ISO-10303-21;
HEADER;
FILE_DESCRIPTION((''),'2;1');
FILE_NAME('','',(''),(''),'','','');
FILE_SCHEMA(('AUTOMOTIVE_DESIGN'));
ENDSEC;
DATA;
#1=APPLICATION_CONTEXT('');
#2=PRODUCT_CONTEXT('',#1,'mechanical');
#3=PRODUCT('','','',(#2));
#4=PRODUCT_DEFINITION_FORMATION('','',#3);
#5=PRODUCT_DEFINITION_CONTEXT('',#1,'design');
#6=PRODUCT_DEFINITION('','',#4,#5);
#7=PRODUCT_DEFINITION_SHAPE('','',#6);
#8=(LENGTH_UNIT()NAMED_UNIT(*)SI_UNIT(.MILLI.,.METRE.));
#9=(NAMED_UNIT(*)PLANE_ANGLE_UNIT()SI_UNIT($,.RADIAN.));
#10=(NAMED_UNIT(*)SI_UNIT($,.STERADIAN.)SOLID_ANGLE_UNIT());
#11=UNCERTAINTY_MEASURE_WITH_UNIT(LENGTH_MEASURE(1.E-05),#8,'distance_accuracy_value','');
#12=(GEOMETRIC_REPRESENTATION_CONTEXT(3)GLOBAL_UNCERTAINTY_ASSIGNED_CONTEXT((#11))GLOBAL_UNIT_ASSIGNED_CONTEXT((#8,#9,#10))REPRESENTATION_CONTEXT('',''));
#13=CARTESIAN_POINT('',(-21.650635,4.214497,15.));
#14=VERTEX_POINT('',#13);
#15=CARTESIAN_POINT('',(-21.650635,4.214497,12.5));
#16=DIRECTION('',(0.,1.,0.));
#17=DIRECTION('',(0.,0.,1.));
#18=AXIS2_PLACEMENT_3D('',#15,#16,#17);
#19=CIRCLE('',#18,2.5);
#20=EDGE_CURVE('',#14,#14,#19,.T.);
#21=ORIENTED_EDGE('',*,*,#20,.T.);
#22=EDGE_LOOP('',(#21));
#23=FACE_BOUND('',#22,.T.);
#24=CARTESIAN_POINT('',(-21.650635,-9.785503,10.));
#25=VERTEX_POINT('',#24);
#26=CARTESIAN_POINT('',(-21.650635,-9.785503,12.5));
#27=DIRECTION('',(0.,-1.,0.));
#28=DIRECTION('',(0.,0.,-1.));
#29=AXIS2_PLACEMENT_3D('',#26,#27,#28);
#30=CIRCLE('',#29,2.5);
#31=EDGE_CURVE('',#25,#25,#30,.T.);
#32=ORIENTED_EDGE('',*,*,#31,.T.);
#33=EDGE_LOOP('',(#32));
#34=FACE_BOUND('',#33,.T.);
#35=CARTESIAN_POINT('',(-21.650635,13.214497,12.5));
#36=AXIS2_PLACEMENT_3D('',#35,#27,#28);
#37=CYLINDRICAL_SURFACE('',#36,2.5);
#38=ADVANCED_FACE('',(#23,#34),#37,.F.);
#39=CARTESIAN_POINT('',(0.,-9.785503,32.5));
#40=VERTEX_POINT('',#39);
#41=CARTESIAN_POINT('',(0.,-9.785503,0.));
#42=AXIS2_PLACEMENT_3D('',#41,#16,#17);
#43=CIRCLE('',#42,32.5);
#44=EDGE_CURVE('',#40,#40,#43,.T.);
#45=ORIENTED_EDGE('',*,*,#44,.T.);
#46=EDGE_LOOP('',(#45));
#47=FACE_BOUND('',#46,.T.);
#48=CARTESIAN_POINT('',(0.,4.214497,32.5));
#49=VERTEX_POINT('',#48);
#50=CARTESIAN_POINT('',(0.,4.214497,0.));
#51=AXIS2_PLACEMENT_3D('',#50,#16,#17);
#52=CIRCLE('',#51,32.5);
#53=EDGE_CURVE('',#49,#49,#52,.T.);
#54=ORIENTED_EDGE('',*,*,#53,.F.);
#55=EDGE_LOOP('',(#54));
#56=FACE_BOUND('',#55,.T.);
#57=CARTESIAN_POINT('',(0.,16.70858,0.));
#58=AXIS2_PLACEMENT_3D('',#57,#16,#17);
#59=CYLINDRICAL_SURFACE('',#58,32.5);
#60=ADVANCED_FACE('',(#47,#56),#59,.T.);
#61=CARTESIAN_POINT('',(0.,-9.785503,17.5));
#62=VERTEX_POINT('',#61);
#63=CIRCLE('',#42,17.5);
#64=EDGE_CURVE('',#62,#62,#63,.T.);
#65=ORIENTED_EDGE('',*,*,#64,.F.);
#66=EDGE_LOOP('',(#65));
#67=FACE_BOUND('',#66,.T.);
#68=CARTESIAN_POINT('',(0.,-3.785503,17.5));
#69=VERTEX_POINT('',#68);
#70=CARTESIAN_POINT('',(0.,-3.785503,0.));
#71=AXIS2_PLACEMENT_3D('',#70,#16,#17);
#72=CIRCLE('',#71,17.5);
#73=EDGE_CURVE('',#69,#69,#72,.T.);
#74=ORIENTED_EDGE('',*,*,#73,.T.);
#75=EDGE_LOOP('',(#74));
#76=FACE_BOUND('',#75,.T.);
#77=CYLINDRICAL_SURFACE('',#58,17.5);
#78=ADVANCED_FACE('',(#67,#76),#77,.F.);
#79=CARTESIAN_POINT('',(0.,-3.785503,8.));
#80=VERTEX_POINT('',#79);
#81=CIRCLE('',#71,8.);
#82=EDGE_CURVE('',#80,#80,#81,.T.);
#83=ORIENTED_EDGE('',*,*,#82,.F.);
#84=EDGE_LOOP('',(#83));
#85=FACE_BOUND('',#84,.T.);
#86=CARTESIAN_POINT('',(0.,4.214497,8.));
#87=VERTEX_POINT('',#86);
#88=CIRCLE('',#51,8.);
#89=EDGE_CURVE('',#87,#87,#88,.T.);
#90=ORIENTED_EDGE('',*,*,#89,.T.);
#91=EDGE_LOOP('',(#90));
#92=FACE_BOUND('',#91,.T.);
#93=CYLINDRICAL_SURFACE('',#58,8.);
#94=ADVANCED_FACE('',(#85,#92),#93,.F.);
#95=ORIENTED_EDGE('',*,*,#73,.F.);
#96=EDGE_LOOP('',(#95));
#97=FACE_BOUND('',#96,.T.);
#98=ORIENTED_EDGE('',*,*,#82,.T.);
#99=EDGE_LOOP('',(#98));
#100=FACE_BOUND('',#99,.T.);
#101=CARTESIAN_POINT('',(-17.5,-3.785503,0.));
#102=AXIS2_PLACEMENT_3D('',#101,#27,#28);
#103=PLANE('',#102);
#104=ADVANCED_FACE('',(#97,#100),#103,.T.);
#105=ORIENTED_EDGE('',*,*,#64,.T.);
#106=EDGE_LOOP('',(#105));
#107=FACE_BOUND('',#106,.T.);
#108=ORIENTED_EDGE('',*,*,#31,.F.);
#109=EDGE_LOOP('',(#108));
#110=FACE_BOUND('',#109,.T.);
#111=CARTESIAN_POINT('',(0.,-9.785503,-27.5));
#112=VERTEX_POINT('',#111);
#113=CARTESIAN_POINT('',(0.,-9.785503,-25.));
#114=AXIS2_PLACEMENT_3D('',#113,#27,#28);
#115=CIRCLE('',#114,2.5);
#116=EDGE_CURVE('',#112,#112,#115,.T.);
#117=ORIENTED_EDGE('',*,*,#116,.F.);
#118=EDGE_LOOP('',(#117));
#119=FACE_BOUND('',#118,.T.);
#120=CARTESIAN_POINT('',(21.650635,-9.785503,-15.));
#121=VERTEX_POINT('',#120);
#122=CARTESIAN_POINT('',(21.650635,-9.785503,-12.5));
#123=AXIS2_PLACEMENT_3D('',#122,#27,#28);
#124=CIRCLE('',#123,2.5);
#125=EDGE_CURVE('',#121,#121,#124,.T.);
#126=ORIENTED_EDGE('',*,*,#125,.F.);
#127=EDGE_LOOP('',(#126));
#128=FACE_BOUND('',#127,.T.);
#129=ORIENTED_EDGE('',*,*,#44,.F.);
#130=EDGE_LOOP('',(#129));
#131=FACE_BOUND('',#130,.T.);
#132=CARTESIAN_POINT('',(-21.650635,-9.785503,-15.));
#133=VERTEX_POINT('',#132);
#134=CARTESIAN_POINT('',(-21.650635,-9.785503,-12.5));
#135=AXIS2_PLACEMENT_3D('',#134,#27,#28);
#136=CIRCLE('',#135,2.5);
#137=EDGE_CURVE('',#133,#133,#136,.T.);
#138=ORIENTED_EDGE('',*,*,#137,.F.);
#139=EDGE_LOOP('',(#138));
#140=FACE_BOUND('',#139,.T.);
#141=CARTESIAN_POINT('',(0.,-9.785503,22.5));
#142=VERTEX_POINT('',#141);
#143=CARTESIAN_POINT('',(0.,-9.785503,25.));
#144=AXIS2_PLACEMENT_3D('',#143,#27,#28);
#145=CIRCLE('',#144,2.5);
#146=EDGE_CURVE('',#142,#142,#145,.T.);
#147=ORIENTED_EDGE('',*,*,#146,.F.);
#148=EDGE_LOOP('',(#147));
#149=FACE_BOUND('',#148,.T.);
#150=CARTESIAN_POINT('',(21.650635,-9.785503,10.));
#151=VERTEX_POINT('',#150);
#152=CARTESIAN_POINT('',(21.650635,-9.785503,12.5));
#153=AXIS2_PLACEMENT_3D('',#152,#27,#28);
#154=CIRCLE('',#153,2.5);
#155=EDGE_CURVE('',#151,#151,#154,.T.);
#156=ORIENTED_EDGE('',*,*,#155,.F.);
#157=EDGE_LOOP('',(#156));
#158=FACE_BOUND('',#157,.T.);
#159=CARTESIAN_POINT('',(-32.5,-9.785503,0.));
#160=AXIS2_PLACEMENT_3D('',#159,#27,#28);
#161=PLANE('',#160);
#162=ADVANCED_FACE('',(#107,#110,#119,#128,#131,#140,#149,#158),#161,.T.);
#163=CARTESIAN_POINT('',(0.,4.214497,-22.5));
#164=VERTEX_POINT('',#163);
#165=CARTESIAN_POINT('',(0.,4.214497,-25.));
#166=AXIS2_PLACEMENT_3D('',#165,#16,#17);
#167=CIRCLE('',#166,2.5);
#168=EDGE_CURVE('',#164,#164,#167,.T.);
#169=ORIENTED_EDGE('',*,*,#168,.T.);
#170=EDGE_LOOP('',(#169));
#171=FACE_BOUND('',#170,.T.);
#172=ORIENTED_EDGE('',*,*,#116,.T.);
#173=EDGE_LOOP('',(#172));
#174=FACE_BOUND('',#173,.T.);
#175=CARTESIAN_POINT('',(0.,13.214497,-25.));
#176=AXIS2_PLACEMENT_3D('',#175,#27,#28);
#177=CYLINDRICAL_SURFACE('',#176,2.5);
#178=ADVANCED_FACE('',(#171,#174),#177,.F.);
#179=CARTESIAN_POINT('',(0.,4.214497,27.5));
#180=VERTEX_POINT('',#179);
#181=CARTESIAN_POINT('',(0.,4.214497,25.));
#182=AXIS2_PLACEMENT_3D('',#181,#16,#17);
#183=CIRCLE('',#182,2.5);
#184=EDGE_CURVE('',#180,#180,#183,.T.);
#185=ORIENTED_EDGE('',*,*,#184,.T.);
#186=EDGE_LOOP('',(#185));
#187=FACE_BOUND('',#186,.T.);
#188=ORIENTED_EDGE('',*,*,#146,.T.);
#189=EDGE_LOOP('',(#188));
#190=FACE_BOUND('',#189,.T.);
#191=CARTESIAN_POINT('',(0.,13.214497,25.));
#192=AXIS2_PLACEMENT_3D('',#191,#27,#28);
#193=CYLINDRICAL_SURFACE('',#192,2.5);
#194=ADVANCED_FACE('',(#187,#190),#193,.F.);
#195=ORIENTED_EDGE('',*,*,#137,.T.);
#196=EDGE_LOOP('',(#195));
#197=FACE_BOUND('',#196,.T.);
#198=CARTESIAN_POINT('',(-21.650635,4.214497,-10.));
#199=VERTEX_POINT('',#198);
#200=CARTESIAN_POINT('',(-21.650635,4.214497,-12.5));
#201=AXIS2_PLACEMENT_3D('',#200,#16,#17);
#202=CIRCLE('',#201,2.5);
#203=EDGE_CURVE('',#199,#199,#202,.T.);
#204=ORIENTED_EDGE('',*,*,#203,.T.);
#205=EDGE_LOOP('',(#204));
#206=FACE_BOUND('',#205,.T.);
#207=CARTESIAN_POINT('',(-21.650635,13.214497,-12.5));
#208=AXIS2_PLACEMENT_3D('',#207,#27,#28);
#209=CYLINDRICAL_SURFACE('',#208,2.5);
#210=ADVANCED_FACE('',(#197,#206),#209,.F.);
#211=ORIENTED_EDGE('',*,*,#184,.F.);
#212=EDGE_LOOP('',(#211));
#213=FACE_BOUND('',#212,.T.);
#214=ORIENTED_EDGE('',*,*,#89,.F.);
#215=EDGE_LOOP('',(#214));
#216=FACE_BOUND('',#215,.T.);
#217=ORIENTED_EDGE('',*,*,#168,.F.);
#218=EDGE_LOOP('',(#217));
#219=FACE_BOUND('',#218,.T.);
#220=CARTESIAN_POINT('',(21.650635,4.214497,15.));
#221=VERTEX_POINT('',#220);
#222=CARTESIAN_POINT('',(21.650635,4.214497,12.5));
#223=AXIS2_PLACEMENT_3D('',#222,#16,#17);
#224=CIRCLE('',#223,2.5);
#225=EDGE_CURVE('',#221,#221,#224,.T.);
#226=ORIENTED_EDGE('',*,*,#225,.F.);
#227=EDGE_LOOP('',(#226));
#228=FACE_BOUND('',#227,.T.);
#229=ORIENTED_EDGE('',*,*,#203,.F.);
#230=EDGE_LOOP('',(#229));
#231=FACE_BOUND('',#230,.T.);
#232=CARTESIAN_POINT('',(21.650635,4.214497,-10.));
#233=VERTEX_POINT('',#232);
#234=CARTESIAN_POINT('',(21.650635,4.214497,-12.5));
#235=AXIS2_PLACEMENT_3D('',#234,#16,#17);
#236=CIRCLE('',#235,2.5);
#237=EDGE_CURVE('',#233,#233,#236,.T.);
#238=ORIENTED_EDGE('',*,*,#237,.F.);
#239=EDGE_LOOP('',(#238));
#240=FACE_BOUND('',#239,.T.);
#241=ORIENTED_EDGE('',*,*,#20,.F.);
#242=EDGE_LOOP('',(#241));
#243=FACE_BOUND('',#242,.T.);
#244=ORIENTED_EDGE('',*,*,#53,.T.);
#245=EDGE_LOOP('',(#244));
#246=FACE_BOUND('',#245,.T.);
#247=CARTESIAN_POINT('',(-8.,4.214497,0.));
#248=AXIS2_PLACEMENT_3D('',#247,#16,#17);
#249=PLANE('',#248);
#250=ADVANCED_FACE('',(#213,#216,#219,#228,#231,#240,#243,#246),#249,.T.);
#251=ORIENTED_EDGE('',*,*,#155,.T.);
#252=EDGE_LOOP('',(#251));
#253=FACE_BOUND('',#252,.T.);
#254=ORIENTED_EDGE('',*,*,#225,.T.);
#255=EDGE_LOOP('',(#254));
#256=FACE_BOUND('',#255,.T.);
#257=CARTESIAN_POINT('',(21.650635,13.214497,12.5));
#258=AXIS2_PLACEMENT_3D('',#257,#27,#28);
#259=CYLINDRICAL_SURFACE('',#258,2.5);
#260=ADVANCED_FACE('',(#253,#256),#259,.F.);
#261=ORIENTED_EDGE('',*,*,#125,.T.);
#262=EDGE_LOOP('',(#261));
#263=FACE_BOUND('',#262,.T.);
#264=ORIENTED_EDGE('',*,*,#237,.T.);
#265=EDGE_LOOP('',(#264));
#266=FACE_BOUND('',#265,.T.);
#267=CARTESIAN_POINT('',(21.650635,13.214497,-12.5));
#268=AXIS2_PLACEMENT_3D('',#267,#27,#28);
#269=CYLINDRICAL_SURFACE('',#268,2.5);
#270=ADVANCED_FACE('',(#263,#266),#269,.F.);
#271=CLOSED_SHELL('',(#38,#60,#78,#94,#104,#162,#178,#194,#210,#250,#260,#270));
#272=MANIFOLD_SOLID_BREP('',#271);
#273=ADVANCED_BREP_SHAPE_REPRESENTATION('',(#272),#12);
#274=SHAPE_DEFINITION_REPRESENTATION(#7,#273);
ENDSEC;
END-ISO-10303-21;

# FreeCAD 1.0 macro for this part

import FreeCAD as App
import Part
import Sketcher

V = App.Vector
Q = App.Units.Quantity


def add_polygon(sketch, points):
    """Adds a closed chain of lines whose ends are joined by coincident constraints."""
    first, n = sketch.GeometryCount, len(points)
    for a, b in zip(points, points[1:] + points[:1]):
        sketch.addGeometry(Part.LineSegment(App.Vector(*a, 0), App.Vector(*b, 0)), False)
    for i in range(n):
        sketch.addConstraint(Sketcher.Constraint("Coincident", first + i, 2, first + (i + 1) % n, 1))

doc = App.newDocument("Part")
params = doc.addObject("Spreadsheet::Sheet", "Params")
for row, (alias, value) in enumerate([
    ("sketch1_width", "15 mm"),
    ("sketch1_height", "14 mm"),
    ("sketch1_height2", "6 mm"),
    ("sketch1_width2", "24.5 mm"),
    ("revolution_angle", "360 deg"),
    ("sketch2_diameter", "5 mm"),
    ("pocket1_length", "23 mm"),
], start=1):
    params.set(f"A{row}", alias)
    params.set(f"B{row}", "=" + value)
    params.setAlias(f"B{row}", alias)

body = doc.addObject("PartDesign::Body", "Body")

# Sketch on XY plane
sketch1 = body.newObject("Sketcher::SketchObject", "Sketch")
sketch1.AttachmentSupport = (doc.getObject("XY_Plane"), [""])
sketch1.MapMode = "FlatFace"
add_polygon(sketch1, [(-8, 4), (-32, 4), (-32, -10), (-18, -10), (-18, -4), (-8, -4)])  # lines 0-5
sketch1.addConstraint(Sketcher.Constraint("Horizontal", 0))
sketch1.addConstraint(Sketcher.Constraint("Vertical", 1))
sketch1.addConstraint(Sketcher.Constraint("Horizontal", 2))
sketch1.addConstraint(Sketcher.Constraint("Vertical", 3))
sketch1.addConstraint(Sketcher.Constraint("Horizontal", 4))
sketch1.addConstraint(Sketcher.Constraint("Vertical", 5))
sketch1.addConstraint(Sketcher.Constraint("DistanceX", 2, 1, 2, 2, Q("15 mm")))
sketch1.addConstraint(Sketcher.Constraint("DistanceY", 1, 2, 1, 1, Q("14 mm")))
sketch1.addConstraint(Sketcher.Constraint("DistanceY", 3, 1, 3, 2, Q("6 mm")))
sketch1.addConstraint(Sketcher.Constraint("DistanceX", 0, 2, 0, 1, Q("24.5 mm")))
sketch1.addConstraint(Sketcher.Constraint("DistanceX", 4, 2, -1, 1, Q("8 mm")))
sketch1.addConstraint(Sketcher.Constraint("DistanceY", -1, 1, 0, 2, Q("4.214497 mm")))
sketch1.setExpression("Constraints[12]", "Params.sketch1_width")
sketch1.setExpression("Constraints[13]", "Params.sketch1_height")
sketch1.setExpression("Constraints[14]", "Params.sketch1_height2")
sketch1.setExpression("Constraints[15]", "Params.sketch1_width2")
revolution = body.newObject("PartDesign::Revolution", "Revolution")
revolution.Profile = sketch1
revolution.ReferenceAxis = (sketch1, ["V_Axis"])
revolution.setExpression("Angle", "Params.revolution_angle")

# Sketch on XZ plane
sketch2 = body.newObject("Sketcher::SketchObject", "Sketch001")
sketch2.AttachmentSupport = (doc.getObject("XZ_Plane"), [""])
sketch2.MapMode = "FlatFace"
sketch2.AttachmentOffset = App.Placement(V(0, 0, 9.785503), App.Rotation())
sketch2.addGeometry(Part.Circle(V(0, 25, 0), V(0, 0, 1), 2.5), False)
sketch2.addGeometry(Part.Circle(V(21.7, 12.5, 0), V(0, 0, 1), 2.5), False)
sketch2.addGeometry(Part.Circle(V(21.7, -12.5, 0), V(0, 0, 1), 2.5), False)
sketch2.addGeometry(Part.Circle(V(0, -25, 0), V(0, 0, 1), 2.5), False)
sketch2.addGeometry(Part.Circle(V(-21.7, -12.5, 0), V(0, 0, 1), 2.5), False)
sketch2.addGeometry(Part.Circle(V(-21.7, 12.5, 0), V(0, 0, 1), 2.5), False)
sketch2.addConstraint(Sketcher.Constraint("Equal", 0, 1))
sketch2.addConstraint(Sketcher.Constraint("Equal", 1, 2))
sketch2.addConstraint(Sketcher.Constraint("Equal", 2, 3))
sketch2.addConstraint(Sketcher.Constraint("Equal", 3, 4))
sketch2.addConstraint(Sketcher.Constraint("Equal", 4, 5))
sketch2.addConstraint(Sketcher.Constraint("Symmetric", 0, 3, 3, 3, -1, 1))
sketch2.addConstraint(Sketcher.Constraint("Symmetric", 1, 3, 4, 3, -1, 1))
sketch2.addConstraint(Sketcher.Constraint("Symmetric", 2, 3, 5, 3, -1, 1))
sketch2.addConstraint(Sketcher.Constraint("Symmetric", 2, 3, 4, 3, -2))
sketch2.addConstraint(Sketcher.Constraint("PointOnObject", 0, 3, -2))
sketch2.addConstraint(Sketcher.Constraint("Diameter", 0, Q("5 mm")))
sketch2.addConstraint(Sketcher.Constraint("DistanceY", -1, 1, 0, 3, Q("25 mm")))
sketch2.addConstraint(Sketcher.Constraint("DistanceY", 2, 3, 1, 3, Q("25 mm")))
sketch2.addConstraint(Sketcher.Constraint("DistanceX", 4, 3, 2, 3, Q("43.30127 mm")))
sketch2.setExpression("Constraints[10]", "Params.sketch2_diameter")
pocket1 = body.newObject("PartDesign::Pocket", "Pocket")
pocket1.Profile = sketch2
pocket1.setExpression("Length", "Params.pocket1_length")

doc.recompute()
